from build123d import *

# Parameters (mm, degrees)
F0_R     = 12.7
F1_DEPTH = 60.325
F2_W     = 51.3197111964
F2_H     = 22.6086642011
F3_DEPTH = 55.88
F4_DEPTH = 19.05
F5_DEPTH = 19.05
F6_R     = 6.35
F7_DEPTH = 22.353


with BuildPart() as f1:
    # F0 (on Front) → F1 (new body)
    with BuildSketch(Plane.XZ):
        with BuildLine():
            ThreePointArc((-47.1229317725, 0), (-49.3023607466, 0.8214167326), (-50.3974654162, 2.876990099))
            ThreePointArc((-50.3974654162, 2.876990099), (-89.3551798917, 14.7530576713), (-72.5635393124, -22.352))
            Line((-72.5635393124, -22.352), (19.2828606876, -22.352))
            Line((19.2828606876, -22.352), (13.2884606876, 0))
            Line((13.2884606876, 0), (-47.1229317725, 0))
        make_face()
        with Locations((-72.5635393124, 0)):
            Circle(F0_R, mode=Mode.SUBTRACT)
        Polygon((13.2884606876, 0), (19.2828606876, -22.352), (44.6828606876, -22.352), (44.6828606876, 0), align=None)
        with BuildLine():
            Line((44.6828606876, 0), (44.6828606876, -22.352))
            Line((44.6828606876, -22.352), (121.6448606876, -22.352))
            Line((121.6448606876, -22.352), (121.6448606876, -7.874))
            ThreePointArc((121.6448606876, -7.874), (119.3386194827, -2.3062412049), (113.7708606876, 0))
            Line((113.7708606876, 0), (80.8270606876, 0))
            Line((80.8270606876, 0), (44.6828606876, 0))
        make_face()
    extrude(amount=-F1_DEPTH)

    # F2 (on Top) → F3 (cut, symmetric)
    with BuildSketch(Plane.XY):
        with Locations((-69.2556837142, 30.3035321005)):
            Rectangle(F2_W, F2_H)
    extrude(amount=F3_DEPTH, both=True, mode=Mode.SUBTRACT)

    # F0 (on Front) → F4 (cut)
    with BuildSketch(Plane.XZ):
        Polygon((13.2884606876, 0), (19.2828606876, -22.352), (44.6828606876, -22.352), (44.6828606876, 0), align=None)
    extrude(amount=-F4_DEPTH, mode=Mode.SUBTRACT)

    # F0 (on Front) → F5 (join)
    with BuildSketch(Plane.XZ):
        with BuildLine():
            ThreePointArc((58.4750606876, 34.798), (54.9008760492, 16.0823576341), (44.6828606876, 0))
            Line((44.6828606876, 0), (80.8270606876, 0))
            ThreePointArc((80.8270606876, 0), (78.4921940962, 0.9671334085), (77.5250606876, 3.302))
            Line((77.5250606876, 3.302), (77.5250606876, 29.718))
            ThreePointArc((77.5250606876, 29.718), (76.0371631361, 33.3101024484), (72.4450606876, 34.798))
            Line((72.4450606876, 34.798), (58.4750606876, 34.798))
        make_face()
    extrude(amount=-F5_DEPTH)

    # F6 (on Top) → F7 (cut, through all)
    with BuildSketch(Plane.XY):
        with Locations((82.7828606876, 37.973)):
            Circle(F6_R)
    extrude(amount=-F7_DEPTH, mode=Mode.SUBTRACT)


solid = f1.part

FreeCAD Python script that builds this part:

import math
import FreeCAD as App
import Part
import Sketcher
Q = App.Units.Quantity

doc = App.newDocument("Part")
body = doc.addObject("PartDesign::Body", "Body")

# Sketch on XZ plane
sketch1 = body.newObject("Sketcher::SketchObject", "Sketch")
sketch1.AttachmentSupport = (doc.getObject("XZ_Plane"), [""])
sketch1.MapMode = "FlatFace"
sketch1.addGeometry([
    Part.ArcOfCircle(Part.Circle(App.Vector(-47.1, 3.3, 0), App.Vector(0, 0, 1), 3.3), math.radians(-173), math.radians(-90)),  # 0
    Part.ArcOfCircle(Part.Circle(App.Vector(-72.6, 0, 0), App.Vector(0, 0, 1), 22.4), math.radians(7), math.radians(270)),  # 1
    Part.LineSegment(App.Vector(-72.6, -22.4, 0), App.Vector(121.6, -22.4, 0)),  # 2
    Part.LineSegment(App.Vector(121.6, -22.4, 0), App.Vector(121.6, -7.9, 0)),  # 3
    Part.ArcOfCircle(Part.Circle(App.Vector(113.8, -7.9, 0), App.Vector(0, 0, 1), 7.9), math.radians(0), math.radians(90)),  # 4
    Part.LineSegment(App.Vector(113.8, 0, 0), App.Vector(-47.1, 0, 0)),  # 5
    Part.Circle(App.Vector(-72.6, 0, 0), App.Vector(0, 0, 1), 12.7),  # 6
], False)
sketch1.addConstraint([
    Sketcher.Constraint("Tangent", 0, 1, 1, 1),
    Sketcher.Constraint("Tangent", 1, 2, 2, 1),
    Sketcher.Constraint("Coincident", 2, 2, 3, 1),
    Sketcher.Constraint("Tangent", 3, 2, 4, 1),
    Sketcher.Constraint("Tangent", 4, 2, 5, 1),
    Sketcher.Constraint("Tangent", 5, 2, 0, 2),
    Sketcher.Constraint("Horizontal", 2),
    Sketcher.Constraint("Vertical", 3),
    Sketcher.Constraint("Horizontal", 5),
    Sketcher.Constraint("Coincident", 6, 3, 1, 3),
    Sketcher.Constraint("PointOnObject", 1, 3, -1),
    Sketcher.Constraint("PointOnObject", 4, 2, -1),
    Sketcher.Constraint("Diameter", 6, Q("1 in")),
    Sketcher.Constraint("Radius", 0, Q("0.13 in")),
    Sketcher.Constraint("Radius", 1, Q("0.88 in")),
    Sketcher.Constraint("Radius", 4, Q("0.31 in")),
    Sketcher.Constraint("DistanceX", 2, 1, 2, 2, Q("7.646 in")),
    Sketcher.Constraint("DistanceX", 0, 3, -1, 1, Q("47.122932 mm")),
])
pad1 = body.newObject("PartDesign::Pad", "Pad")
pad1.Profile = sketch1
pad1.Length = Q("2.375 in")
pad1.Reversed = True

# Sketch on XY plane
sketch2 = body.newObject("Sketcher::SketchObject", "Sketch001")
sketch2.AttachmentSupport = (doc.getObject("XY_Plane"), [""])
sketch2.MapMode = "FlatFace"
sketch2.addGeometry([
    Part.LineSegment(App.Vector(-95, 42, 0), App.Vector(-95, 19, 0)),
    Part.LineSegment(App.Vector(-95, 19, 0), App.Vector(-44, 19, 0)),
    Part.LineSegment(App.Vector(-44, 19, 0), App.Vector(-44, 42, 0)),
    Part.LineSegment(App.Vector(-44, 42, 0), App.Vector(-95, 42, 0)),
], False)
sketch2.addConstraint([
    Sketcher.Constraint("Coincident", 0, 2, 1, 1),
    Sketcher.Constraint("Coincident", 1, 2, 2, 1),
    Sketcher.Constraint("Coincident", 2, 2, 3, 1),
    Sketcher.Constraint("Coincident", 3, 2, 0, 1),
    Sketcher.Constraint("Vertical", 0),
    Sketcher.Constraint("Horizontal", 1),
    Sketcher.Constraint("Vertical", 2),
    Sketcher.Constraint("Horizontal", 3),
    Sketcher.Constraint("DistanceY", -1, 1, 0, 2, Q("0.748 in")),
    Sketcher.Constraint("DistanceX", 1, 1, 1, 2, Q("51.319711 mm")),
    Sketcher.Constraint("DistanceY", 0, 2, 0, 1, Q("22.608664 mm")),
    Sketcher.Constraint("DistanceX", 0, 2, -1, 1, Q("94.915539 mm")),
])
pocket1 = body.newObject("PartDesign::Pocket", "Pocket")
pocket1.Profile = sketch2
pocket1.Length = Q("4.4 in")
pocket1.Midplane = True

# Sketch on XZ plane
sketch3 = body.newObject("Sketcher::SketchObject", "Sketch002")
sketch3.AttachmentSupport = (doc.getObject("XZ_Plane"), [""])
sketch3.MapMode = "FlatFace"
sketch3.addGeometry([
    Part.LineSegment(App.Vector(13, 0, 0), App.Vector(19, -22, 0)),
    Part.LineSegment(App.Vector(19, -22, 0), App.Vector(45, -22, 0)),
    Part.LineSegment(App.Vector(45, -22, 0), App.Vector(45, 0, 0)),
    Part.LineSegment(App.Vector(45, 0, 0), App.Vector(13, 0, 0)),
], False)
sketch3.addConstraint([
    Sketcher.Constraint("Coincident", 0, 2, 1, 1),
    Sketcher.Constraint("Coincident", 1, 2, 2, 1),
    Sketcher.Constraint("Coincident", 2, 2, 3, 1),
    Sketcher.Constraint("Coincident", 3, 2, 0, 1),
    Sketcher.Constraint("Horizontal", 1),
    Sketcher.Constraint("Vertical", 2),
    Sketcher.Constraint("Horizontal", 3),
    Sketcher.Constraint("PointOnObject", 2, 2, -1),
    Sketcher.Constraint("DistanceX", 1, 1, 1, 2, Q("1 in")),
    Sketcher.Constraint("DistanceY", 2, 1, 2, 2, Q("0.88 in")),
    Sketcher.Constraint("DistanceX", 3, 2, 3, 1, Q("1.236 in")),
    Sketcher.Constraint("DistanceX", -1, 1, 0, 2, Q("19.282861 mm")),
])
pocket2 = body.newObject("PartDesign::Pocket", "Pocket001")
pocket2.Profile = sketch3
pocket2.Length = Q("0.75 in")

# Sketch on XZ plane
sketch4 = body.newObject("Sketcher::SketchObject", "Sketch003")
sketch4.AttachmentSupport = (doc.getObject("XZ_Plane"), [""])
sketch4.MapMode = "FlatFace"
sketch4.addGeometry([
    Part.ArcOfCircle(Part.Circle(App.Vector(7.7, 34.8, 0), App.Vector(0, 0, 1), 50.8), math.radians(-43), math.radians(0)),  # 0
    Part.LineSegment(App.Vector(44.7, 0, 0), App.Vector(80.8, 0, 0)),  # 1
    Part.ArcOfCircle(Part.Circle(App.Vector(80.8, 3.3, 0), App.Vector(0, 0, 1), 3.3), math.radians(180), math.radians(270)),  # 2
    Part.LineSegment(App.Vector(77.5, 3.3, 0), App.Vector(77.5, 29.7, 0)),  # 3
    Part.ArcOfCircle(Part.Circle(App.Vector(72.4, 29.7, 0), App.Vector(0, 0, 1), 5.1), math.radians(0), math.radians(90)),  # 4
    Part.LineSegment(App.Vector(72.4, 34.8, 0), App.Vector(58.5, 34.8, 0)),  # 5
], False)
sketch4.addConstraint([
    Sketcher.Constraint("Coincident", 0, 1, 1, 1),
    Sketcher.Constraint("Tangent", 1, 2, 2, 2),
    Sketcher.Constraint("Tangent", 2, 1, 3, 1),
    Sketcher.Constraint("Tangent", 3, 2, 4, 1),
    Sketcher.Constraint("Tangent", 4, 2, 5, 1),
    Sketcher.Constraint("Coincident", 5, 2, 0, 2),
    Sketcher.Constraint("Horizontal", 1),
    Sketcher.Constraint("Vertical", 3),
    Sketcher.Constraint("Horizontal", 5),
    Sketcher.Constraint("PointOnObject", 0, 1, -1),
    Sketcher.Constraint("Radius", 0, Q("2 in")),
    Sketcher.Constraint("Radius", 4, Q("0.2 in")),
    Sketcher.Constraint("Radius", 2, Q("0.13 in")),
    Sketcher.Constraint("DistanceX", 5, 2, 5, 1, Q("0.55 in")),
    Sketcher.Constraint("DistanceY", 3, 1, 3, 2, Q("1.04 in")),
    Sketcher.Constraint("DistanceX", 1, 1, 1, 2, Q("1.423 in")),
    Sketcher.Constraint("DistanceX", -1, 1, 0, 3, Q("7.675061 mm")),
])
pad2 = body.newObject("PartDesign::Pad", "Pad001")
pad2.Profile = sketch4
pad2.Length = Q("0.75 in")
pad2.Reversed = True

# Sketch on XY plane
sketch5 = body.newObject("Sketcher::SketchObject", "Sketch004")
sketch5.AttachmentSupport = (doc.getObject("XY_Plane"), [""])
sketch5.MapMode = "FlatFace"
sketch5.addGeometry(Part.Circle(App.Vector(83, 38, 0), App.Vector(0, 0, 1), 6), False)
sketch5.addConstraint([
    Sketcher.Constraint("Diameter", 0, Q("0.5 in")),
    Sketcher.Constraint("DistanceY", -1, 1, 0, 3, Q("1.495 in")),
    Sketcher.Constraint("DistanceX", -1, 1, 0, 3, Q("82.782861 mm")),
])
pocket3 = body.newObject("PartDesign::Pocket", "Pocket002")
pocket3.Profile = sketch5
pocket3.Type = "ThroughAll"

doc.recompute()
